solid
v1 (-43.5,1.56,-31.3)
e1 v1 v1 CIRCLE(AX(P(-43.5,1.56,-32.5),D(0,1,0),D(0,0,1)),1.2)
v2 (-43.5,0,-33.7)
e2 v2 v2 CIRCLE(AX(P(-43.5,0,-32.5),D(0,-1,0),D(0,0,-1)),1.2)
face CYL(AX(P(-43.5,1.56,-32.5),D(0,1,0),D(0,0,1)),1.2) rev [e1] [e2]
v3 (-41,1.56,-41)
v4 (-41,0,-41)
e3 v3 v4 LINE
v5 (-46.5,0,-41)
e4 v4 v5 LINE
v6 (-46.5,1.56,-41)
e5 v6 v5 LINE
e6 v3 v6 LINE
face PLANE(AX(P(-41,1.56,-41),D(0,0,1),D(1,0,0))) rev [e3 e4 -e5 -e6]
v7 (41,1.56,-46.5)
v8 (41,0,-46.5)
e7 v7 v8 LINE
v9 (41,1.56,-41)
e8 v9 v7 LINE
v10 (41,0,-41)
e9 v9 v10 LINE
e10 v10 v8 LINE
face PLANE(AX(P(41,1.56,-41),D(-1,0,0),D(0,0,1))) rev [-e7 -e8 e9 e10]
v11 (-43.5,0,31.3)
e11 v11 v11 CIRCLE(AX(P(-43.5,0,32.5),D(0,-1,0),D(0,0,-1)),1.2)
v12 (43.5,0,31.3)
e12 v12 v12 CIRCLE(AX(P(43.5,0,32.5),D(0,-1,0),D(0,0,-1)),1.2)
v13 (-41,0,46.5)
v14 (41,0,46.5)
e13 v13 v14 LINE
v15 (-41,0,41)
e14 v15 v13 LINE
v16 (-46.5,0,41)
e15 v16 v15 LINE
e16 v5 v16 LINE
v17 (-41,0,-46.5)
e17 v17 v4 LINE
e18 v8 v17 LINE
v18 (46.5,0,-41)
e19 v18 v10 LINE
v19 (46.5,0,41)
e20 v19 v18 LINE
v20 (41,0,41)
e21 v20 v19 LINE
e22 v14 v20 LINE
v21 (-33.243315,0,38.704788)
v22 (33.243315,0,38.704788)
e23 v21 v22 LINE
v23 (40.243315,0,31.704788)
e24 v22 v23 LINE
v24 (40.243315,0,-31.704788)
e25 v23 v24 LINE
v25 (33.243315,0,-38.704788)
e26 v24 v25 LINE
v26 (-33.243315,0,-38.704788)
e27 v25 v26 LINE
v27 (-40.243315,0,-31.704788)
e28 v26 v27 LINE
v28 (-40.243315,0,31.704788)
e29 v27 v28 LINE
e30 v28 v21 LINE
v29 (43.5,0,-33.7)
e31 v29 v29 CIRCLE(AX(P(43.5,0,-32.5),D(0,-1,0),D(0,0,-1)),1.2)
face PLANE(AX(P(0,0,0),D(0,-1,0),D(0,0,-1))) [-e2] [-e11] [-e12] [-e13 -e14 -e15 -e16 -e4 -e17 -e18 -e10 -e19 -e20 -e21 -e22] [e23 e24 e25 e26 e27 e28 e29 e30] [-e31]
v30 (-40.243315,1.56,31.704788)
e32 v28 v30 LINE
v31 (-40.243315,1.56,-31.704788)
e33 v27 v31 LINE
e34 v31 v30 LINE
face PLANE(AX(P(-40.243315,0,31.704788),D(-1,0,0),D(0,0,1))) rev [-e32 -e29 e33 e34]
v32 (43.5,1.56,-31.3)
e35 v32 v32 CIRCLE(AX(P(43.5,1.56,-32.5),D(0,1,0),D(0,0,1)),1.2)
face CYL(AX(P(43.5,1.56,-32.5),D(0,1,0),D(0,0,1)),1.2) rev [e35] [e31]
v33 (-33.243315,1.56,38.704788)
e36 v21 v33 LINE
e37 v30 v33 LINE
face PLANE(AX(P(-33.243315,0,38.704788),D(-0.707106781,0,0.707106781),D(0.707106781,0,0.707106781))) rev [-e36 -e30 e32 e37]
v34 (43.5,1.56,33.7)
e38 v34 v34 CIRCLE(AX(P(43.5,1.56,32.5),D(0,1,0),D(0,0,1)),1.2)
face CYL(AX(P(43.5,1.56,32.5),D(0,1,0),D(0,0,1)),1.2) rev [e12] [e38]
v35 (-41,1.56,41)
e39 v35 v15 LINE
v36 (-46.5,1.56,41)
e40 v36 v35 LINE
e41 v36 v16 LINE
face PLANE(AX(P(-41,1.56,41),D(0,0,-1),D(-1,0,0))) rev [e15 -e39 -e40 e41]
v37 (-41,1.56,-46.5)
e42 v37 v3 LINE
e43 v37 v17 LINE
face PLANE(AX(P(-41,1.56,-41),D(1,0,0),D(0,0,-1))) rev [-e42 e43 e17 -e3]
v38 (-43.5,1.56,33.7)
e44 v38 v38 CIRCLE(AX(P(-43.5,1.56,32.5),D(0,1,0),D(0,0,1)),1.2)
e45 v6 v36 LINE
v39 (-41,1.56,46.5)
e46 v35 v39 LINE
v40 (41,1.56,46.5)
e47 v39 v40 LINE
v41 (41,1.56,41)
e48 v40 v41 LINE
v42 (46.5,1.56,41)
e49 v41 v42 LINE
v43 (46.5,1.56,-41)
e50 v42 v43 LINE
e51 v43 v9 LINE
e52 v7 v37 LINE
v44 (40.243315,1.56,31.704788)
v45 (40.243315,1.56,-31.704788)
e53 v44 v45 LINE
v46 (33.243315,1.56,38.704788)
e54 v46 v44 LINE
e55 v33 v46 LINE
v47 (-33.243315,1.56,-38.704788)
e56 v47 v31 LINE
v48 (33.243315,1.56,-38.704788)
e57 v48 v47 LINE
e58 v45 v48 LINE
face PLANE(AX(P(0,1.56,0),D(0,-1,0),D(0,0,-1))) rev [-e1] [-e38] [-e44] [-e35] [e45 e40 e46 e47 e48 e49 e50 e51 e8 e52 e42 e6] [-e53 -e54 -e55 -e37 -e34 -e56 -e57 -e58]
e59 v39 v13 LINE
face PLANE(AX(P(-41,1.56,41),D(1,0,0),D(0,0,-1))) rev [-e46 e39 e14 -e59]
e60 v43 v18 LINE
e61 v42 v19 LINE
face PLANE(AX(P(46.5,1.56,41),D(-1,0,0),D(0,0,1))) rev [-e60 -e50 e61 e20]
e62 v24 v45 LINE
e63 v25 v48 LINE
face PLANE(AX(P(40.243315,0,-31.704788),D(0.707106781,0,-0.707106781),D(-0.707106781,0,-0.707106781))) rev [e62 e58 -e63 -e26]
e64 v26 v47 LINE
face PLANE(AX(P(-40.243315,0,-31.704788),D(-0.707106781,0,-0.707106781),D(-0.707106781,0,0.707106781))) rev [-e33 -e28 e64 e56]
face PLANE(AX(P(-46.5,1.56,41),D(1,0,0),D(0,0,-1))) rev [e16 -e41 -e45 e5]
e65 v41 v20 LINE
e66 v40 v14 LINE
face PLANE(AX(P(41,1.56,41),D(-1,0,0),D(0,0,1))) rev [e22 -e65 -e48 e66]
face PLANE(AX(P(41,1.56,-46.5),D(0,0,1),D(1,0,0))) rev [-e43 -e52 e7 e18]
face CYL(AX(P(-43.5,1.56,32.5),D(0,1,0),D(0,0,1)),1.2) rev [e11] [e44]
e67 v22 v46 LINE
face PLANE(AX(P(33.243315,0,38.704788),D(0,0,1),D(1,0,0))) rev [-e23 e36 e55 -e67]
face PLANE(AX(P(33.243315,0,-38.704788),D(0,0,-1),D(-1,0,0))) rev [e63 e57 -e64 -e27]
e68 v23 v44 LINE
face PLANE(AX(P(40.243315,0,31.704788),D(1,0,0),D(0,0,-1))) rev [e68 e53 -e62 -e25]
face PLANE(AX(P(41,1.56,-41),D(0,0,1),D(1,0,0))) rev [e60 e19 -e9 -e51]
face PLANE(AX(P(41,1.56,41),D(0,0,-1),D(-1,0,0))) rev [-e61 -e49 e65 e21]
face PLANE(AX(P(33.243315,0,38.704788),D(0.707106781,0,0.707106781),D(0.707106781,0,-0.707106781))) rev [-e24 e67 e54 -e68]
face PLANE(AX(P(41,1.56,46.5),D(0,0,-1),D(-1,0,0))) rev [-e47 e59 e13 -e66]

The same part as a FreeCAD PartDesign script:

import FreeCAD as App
import Part
import Sketcher

doc = App.newDocument("Part")
body = doc.addObject("PartDesign::Body", "Body")

sketch1 = body.newObject("Sketcher::SketchObject", "Sketch")
sketch1.AttachmentSupport = (doc.getObject("XZ_Plane"), [""])
sketch1.MapMode = "FlatFace"
sketch1.addGeometry([
    Part.LineSegment(App.Vector(-46.5, 41, 0), App.Vector(-41, 41, 0)),
    Part.LineSegment(App.Vector(-41, 41, 0), App.Vector(-41, 46.5, 0)),
    Part.LineSegment(App.Vector(-41, 46.5, 0), App.Vector(41, 46.5, 0)),
    Part.LineSegment(App.Vector(41, 46.5, 0), App.Vector(41, 41, 0)),
    Part.LineSegment(App.Vector(41, 41, 0), App.Vector(46.5, 41, 0)),
    Part.LineSegment(App.Vector(46.5, 41, 0), App.Vector(46.5, -41, 0)),
    Part.LineSegment(App.Vector(46.5, -41, 0), App.Vector(41, -41, 0)),
    Part.LineSegment(App.Vector(41, -41, 0), App.Vector(41, -46.5, 0)),
    Part.LineSegment(App.Vector(41, -46.5, 0), App.Vector(-41, -46.5, 0)),
    Part.LineSegment(App.Vector(-41, -46.5, 0), App.Vector(-41, -41, 0)),
    Part.LineSegment(App.Vector(-41, -41, 0), App.Vector(-46.5, -41, 0)),
    Part.LineSegment(App.Vector(-46.5, -41, 0), App.Vector(-46.5, 41, 0)),
], False)
sketch1.addConstraint([
    Sketcher.Constraint("Coincident", 0, 2, 1, 1),
    Sketcher.Constraint("Coincident", 1, 2, 2, 1),
    Sketcher.Constraint("Coincident", 2, 2, 3, 1),
    Sketcher.Constraint("Coincident", 3, 2, 4, 1),
    Sketcher.Constraint("Coincident", 4, 2, 5, 1),
    Sketcher.Constraint("Coincident", 5, 2, 6, 1),
    Sketcher.Constraint("Coincident", 6, 2, 7, 1),
    Sketcher.Constraint("Coincident", 7, 2, 8, 1),
    Sketcher.Constraint("Coincident", 8, 2, 9, 1),
    Sketcher.Constraint("Coincident", 9, 2, 10, 1),
    Sketcher.Constraint("Coincident", 10, 2, 11, 1),
    Sketcher.Constraint("Coincident", 11, 2, 0, 1),
    Sketcher.Constraint("Horizontal", 0),
    Sketcher.Constraint("Vertical", 1),
    Sketcher.Constraint("Horizontal", 2),
    Sketcher.Constraint("Vertical", 3),
    Sketcher.Constraint("Horizontal", 4),
    Sketcher.Constraint("Vertical", 5),
    Sketcher.Constraint("Horizontal", 6),
    Sketcher.Constraint("Vertical", 7),
    Sketcher.Constraint("Horizontal", 8),
    Sketcher.Constraint("Vertical", 9),
    Sketcher.Constraint("Horizontal", 10),
    Sketcher.Constraint("Vertical", 11),
    Sketcher.Constraint("Symmetric", 0, 2, 6, 2, -1, 1),
    Sketcher.Constraint("Symmetric", 2, 2, 8, 2, -1, 1),
    Sketcher.Constraint("Symmetric", 4, 2, 10, 2, -1, 1),
    Sketcher.Constraint("Symmetric", 0, 2, 3, 2, -2),
    Sketcher.Constraint("Equal", 10, 1),
    Sketcher.Constraint("Equal", 8, 5),
    Sketcher.Constraint("DistanceX", 2, 1, 2, 2, 82.0),
    Sketcher.Constraint("DistanceX", 0, 1, 0, 2, 5.5),
])
pad1 = body.newObject("PartDesign::Pad", "Pad")
pad1.Profile = sketch1
pad1.Length = 1.56
pad1.Reversed = True

sketch2 = body.newObject("Sketcher::SketchObject", "Sketch001")
sketch2.AttachmentSupport = (doc.getObject("XZ_Plane"), [""])
sketch2.MapMode = "FlatFace"
sketch2.AttachmentOffset = App.Placement(App.Vector(0, 0, -1.56), App.Rotation())
sketch2.addGeometry([
    Part.LineSegment(App.Vector(-33.243315, -38.704788, 0), App.Vector(-40.243315, -31.704788, 0)),
    Part.LineSegment(App.Vector(-40.243315, -31.704788, 0), App.Vector(-40.243315, 31.704788, 0)),
    Part.LineSegment(App.Vector(-40.243315, 31.704788, 0), App.Vector(-33.243315, 38.704788, 0)),
    Part.LineSegment(App.Vector(-33.243315, 38.704788, 0), App.Vector(33.243315, 38.704788, 0)),
    Part.LineSegment(App.Vector(33.243315, 38.704788, 0), App.Vector(40.243315, 31.704788, 0)),
    Part.LineSegment(App.Vector(40.243315, 31.704788, 0), App.Vector(40.243315, -31.704788, 0)),
    Part.LineSegment(App.Vector(40.243315, -31.704788, 0), App.Vector(33.243315, -38.704788, 0)),
    Part.LineSegment(App.Vector(33.243315, -38.704788, 0), App.Vector(-33.243315, -38.704788, 0)),
], False)
sketch2.addConstraint([
    Sketcher.Constraint("Coincident", 0, 2, 1, 1),
    Sketcher.Constraint("Coincident", 1, 2, 2, 1),
    Sketcher.Constraint("Coincident", 2, 2, 3, 1),
    Sketcher.Constraint("Coincident", 3, 2, 4, 1),
    Sketcher.Constraint("Coincident", 4, 2, 5, 1),
    Sketcher.Constraint("Coincident", 5, 2, 6, 1),
    Sketcher.Constraint("Coincident", 6, 2, 7, 1),
    Sketcher.Constraint("Coincident", 7, 2, 0, 1),
    Sketcher.Constraint("Vertical", 1),
    Sketcher.Constraint("Horizontal", 3),
    Sketcher.Constraint("Vertical", 5),
    Sketcher.Constraint("Horizontal", 7),
    Sketcher.Constraint("Symmetric", 0, 2, 4, 2, -1, 1),
    Sketcher.Constraint("Symmetric", 2, 2, 6, 2, -1, 1),
    Sketcher.Constraint("Perpendicular", 0, 2),
    Sketcher.Constraint("Perpendicular", 2, 4),
    Sketcher.Constraint("Perpendicular", 4, 6),
    Sketcher.Constraint("Horizontal", 1, 2, 4, 2),
    Sketcher.Constraint("Vertical", 3, 2, 6, 2),
    Sketcher.Constraint("DistanceX", 1, 2, 2, 2, 7.0),
    Sketcher.Constraint("DistanceX", 3, 1, 3, 2, 66.48663),
    Sketcher.Constraint("DistanceY", 1, 1, 1, 2, 63.409576),
])
pocket1 = body.newObject("PartDesign::Pocket", "Pocket")
pocket1.Profile = sketch2
pocket1.Length = 1.56
pocket1.Reversed = True

sketch3 = body.newObject("Sketcher::SketchObject", "Sketch002")
sketch3.AttachmentSupport = (doc.getObject("XZ_Plane"), [""])
sketch3.MapMode = "FlatFace"
sketch3.AttachmentOffset = App.Placement(App.Vector(0, 0, -1.56), App.Rotation())
sketch3.addGeometry([
    Part.Circle(App.Vector(-43.5, 32.5, 0), App.Vector(0, 0, 1), 1.2),
    Part.Circle(App.Vector(-43.5, -32.5, 0), App.Vector(0, 0, 1), 1.2),
    Part.Circle(App.Vector(43.5, -32.5, 0), App.Vector(0, 0, 1), 1.2),
    Part.Circle(App.Vector(43.5, 32.5, 0), App.Vector(0, 0, 1), 1.2),
], False)
sketch3.addConstraint([
    Sketcher.Constraint("Equal", 0, 1),
    Sketcher.Constraint("Equal", 1, 2),
    Sketcher.Constraint("Equal", 2, 3),
    Sketcher.Constraint("Symmetric", 0, 3, 2, 3, -1, 1),
    Sketcher.Constraint("Symmetric", 1, 3, 3, 3, -1, 1),
    Sketcher.Constraint("Symmetric", 1, 3, 2, 3, -2),
    Sketcher.Constraint("Diameter", 0, 2.4),
    Sketcher.Constraint("DistanceY", 1, 3, 0, 3, 65.0),
    Sketcher.Constraint("DistanceX", 1, 3, 2, 3, 87.0),
])
doc.recompute()
hole = body.newObject("PartDesign::Hole", "Hole")
hole.Profile = sketch3
hole.ThreadType = "None"
hole.Diameter = 2.4
hole.DepthType = "Dimension"
hole.Depth = 38.1
hole.DrillPoint = "Angled"
hole.DrillPointAngle = 118
hole.Reversed = True

doc.recompute()
